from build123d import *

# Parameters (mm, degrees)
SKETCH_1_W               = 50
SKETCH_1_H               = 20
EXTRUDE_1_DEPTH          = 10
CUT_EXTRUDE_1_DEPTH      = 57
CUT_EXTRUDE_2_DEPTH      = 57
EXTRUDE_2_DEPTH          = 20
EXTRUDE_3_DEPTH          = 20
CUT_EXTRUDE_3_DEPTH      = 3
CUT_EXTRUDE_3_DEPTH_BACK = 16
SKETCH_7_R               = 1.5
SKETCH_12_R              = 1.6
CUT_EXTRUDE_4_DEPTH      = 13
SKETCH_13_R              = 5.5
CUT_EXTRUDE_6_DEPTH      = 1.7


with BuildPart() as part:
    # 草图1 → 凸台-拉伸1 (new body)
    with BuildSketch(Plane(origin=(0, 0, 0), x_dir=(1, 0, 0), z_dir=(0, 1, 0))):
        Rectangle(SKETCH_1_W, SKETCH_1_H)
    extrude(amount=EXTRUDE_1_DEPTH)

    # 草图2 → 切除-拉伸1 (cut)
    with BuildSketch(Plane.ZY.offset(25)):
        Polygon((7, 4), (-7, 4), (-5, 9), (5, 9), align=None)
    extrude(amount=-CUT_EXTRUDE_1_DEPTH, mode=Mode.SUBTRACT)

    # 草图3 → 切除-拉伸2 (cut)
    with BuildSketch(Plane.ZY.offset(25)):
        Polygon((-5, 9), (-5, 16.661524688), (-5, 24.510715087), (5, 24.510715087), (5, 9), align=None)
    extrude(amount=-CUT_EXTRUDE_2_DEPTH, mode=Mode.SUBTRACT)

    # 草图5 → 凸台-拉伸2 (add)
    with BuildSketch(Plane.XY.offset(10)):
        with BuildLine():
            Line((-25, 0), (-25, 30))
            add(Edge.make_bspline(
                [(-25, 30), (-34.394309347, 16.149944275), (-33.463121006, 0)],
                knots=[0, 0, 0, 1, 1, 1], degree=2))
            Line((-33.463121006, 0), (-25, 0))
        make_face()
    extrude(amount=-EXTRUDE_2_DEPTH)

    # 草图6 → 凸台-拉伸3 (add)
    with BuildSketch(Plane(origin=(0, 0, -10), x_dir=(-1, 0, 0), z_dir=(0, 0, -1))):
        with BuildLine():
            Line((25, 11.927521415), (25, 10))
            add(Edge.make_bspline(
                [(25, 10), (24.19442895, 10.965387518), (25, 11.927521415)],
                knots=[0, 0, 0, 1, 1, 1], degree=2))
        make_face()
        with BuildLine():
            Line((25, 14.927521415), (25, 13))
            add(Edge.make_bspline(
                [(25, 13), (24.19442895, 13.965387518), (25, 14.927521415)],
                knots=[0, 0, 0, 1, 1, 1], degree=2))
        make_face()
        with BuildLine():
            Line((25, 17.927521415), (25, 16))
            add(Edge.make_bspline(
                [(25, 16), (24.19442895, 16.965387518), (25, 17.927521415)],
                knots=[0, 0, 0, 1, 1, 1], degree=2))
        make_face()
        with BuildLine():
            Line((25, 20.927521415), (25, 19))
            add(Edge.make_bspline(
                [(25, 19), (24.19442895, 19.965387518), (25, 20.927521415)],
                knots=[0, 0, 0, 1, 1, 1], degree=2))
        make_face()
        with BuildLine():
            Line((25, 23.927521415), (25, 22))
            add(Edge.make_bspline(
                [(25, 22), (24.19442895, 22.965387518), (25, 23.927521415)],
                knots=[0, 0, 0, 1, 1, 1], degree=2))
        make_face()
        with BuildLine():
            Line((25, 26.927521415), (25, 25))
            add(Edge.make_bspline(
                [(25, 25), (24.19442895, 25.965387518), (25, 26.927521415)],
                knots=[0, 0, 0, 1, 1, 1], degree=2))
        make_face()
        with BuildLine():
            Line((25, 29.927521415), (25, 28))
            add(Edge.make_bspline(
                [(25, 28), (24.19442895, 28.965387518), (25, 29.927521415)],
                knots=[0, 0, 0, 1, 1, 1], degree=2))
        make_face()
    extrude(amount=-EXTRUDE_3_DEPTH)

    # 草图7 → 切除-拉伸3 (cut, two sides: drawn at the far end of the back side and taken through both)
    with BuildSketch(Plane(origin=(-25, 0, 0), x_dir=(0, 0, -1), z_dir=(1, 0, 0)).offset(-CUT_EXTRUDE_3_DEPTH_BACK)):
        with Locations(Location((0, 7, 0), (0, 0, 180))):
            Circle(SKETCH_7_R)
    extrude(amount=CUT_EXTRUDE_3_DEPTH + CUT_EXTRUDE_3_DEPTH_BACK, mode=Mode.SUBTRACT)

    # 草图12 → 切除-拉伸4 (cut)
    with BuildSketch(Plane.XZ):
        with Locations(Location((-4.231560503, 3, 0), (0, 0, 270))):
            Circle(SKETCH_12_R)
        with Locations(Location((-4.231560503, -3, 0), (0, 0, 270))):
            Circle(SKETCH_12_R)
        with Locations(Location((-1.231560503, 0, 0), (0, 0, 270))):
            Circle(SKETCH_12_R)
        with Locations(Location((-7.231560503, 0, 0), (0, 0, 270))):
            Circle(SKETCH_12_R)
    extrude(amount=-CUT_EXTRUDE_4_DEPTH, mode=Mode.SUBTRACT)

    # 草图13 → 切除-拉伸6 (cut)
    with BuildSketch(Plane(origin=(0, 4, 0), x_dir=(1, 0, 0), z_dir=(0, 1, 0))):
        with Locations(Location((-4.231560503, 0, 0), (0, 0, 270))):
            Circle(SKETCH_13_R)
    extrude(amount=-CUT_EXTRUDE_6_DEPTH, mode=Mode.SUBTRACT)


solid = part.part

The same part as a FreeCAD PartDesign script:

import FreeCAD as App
import Part
import Sketcher
from FreeCAD import Vector
Q = App.Units.Quantity


def add_polygon(sketch, points):
    """Adds a closed chain of lines whose ends are joined by coincident constraints."""
    first, n = sketch.GeometryCount, len(points)
    for a, b in zip(points, points[1:] + points[:1]):
        sketch.addGeometry(Part.LineSegment(App.Vector(*a, 0), App.Vector(*b, 0)), False)
    for i in range(n):
        sketch.addConstraint(Sketcher.Constraint("Coincident", first + i, 2, first + (i + 1) % n, 1))

doc = App.newDocument("Part")
params = doc.addObject("Spreadsheet::Sheet", "Params")
for row, (alias, value) in enumerate([
    ("sketch1_width", "50 mm"),
    ("sketch1_height", "20 mm"),
    ("pad1_length", "10 mm"),
    ("sketch2_height", "14 mm"),
    ("sketch2_height2", "10 mm"),
    ("pocket1_length", "57 mm"),
    ("sketch3_height", "10 mm"),
    ("pocket2_length", "57 mm"),
    ("pad2_length", "20 mm"),
    ("pad3_length", "20 mm"),
    ("sketch6_diameter", "3 mm"),
    ("sketch7_diameter", "3.2 mm"),
    ("pocket4_length", "13 mm"),
    ("sketch8_diameter", "11 mm"),
    ("pocket5_length", "1.7 mm"),
], start=1):
    params.set(f"A{row}", alias)
    params.set(f"B{row}", "=" + value)
    params.setAlias(f"B{row}", alias)

body = doc.addObject("PartDesign::Body", "Body")

# Sketch on XZ plane
sketch1 = doc.addObject("Sketcher::SketchObject", "Sketch")
body.addObject(sketch1)
sketch1.AttachmentSupport = (doc.XZ_Plane, [""])
sketch1.MapMode = "FlatFace"
add_polygon(sketch1, [(-25, -10), (-25, 10), (25, 10), (25, -10)])  # lines 0-3
sketch1.addConstraint([
    Sketcher.Constraint("Vertical", 0),
    Sketcher.Constraint("Horizontal", 1),
    Sketcher.Constraint("Vertical", 2),
    Sketcher.Constraint("Horizontal", 3),
    Sketcher.Constraint("Symmetric", 0, 2, 2, 2, -1, 1),
    Sketcher.Constraint("DistanceX", 1, 1, 1, 2, Q("50 mm")),
    Sketcher.Constraint("DistanceY", 0, 1, 0, 2, Q("20 mm")),
])
sketch1.setExpression("Constraints[9]", "Params.sketch1_width")
sketch1.setExpression("Constraints[10]", "Params.sketch1_height")
pad1 = doc.addObject("PartDesign::Pad", "Pad")
body.addObject(pad1)
pad1.Profile = sketch1
pad1.setExpression("Length", "Params.pad1_length")
pad1.Reversed = True

# Sketch on YZ plane
sketch2 = doc.addObject("Sketcher::SketchObject", "Sketch001")
body.addObject(sketch2)
sketch2.AttachmentSupport = (doc.YZ_Plane, [""])
sketch2.MapMode = "FlatFace"
sketch2.AttachmentOffset = App.Placement(Vector(0, 0, -25), App.Rotation())
add_polygon(sketch2, [(4, -7), (4, 7), (9, 5), (9, -5)])  # lines 0-3
sketch2.addConstraint([
    Sketcher.Constraint("Vertical", 0),
    Sketcher.Constraint("Vertical", 2),
    Sketcher.Constraint("Equal", 1, 3),
    Sketcher.Constraint("DistanceY", 0, 1, 0, 2, Q("14 mm")),
    Sketcher.Constraint("DistanceY", 2, 2, 2, 1, Q("10 mm")),
    Sketcher.Constraint("DistanceX", -1, 1, 0, 2, Q("4 mm")),
    Sketcher.Constraint("DistanceY", -1, 1, 0, 2, Q("7 mm")),
    Sketcher.Constraint("DistanceX", -1, 1, 1, 2, Q("9 mm")),
])
sketch2.setExpression("Constraints[7]", "Params.sketch2_height")
sketch2.setExpression("Constraints[8]", "Params.sketch2_height2")
pocket1 = doc.addObject("PartDesign::Pocket", "Pocket")
body.addObject(pocket1)
pocket1.Profile = sketch2
pocket1.setExpression("Length", "Params.pocket1_length")
pocket1.Reversed = True

# Sketch on YZ plane
sketch3 = doc.addObject("Sketcher::SketchObject", "Sketch002")
body.addObject(sketch3)
sketch3.AttachmentSupport = (doc.YZ_Plane, [""])
sketch3.MapMode = "FlatFace"
sketch3.AttachmentOffset = App.Placement(Vector(0, 0, -25), App.Rotation())
add_polygon(sketch3, [(25, -5), (9, -5), (9, 5), (25, 5)])  # lines 0-3
sketch3.addConstraint([
    Sketcher.Constraint("Horizontal", 0),
    Sketcher.Constraint("Vertical", 1),
    Sketcher.Constraint("Horizontal", 2),
    Sketcher.Constraint("Vertical", 3),
    Sketcher.Constraint("DistanceY", 1, 1, 1, 2, Q("10 mm")),
    Sketcher.Constraint("DistanceX", -1, 1, 0, 2, Q("9 mm")),
    Sketcher.Constraint("DistanceY", 0, 2, -1, 1, Q("5 mm")),
    Sketcher.Constraint("DistanceX", 0, 2, 0, 1, Q("15.510715 mm")),
])
sketch3.setExpression("Constraints[8]", "Params.sketch3_height")
pocket2 = doc.addObject("PartDesign::Pocket", "Pocket001")
body.addObject(pocket2)
pocket2.Profile = sketch3
pocket2.setExpression("Length", "Params.pocket2_length")
pocket2.Reversed = True

# Sketch on XY plane
sketch4 = doc.addObject("Sketcher::SketchObject", "Sketch003")
body.addObject(sketch4)
sketch4.AttachmentSupport = (doc.XY_Plane, [""])
sketch4.MapMode = "FlatFace"
sketch4.AttachmentOffset = App.Placement(Vector(0, 0, 10), App.Rotation())
sketch4.addGeometry([
    Part.LineSegment(Vector(-25, 0, 0), Vector(-25, 30, 0)),
    Part.BSplineCurve([Vector(-25, 30, 0), Vector(-34.394309, 16.149944, 0), Vector(-33.463121, 0, 0)], [3, 3], [0, 1], False, 2, [1, 1, 1], False),
    Part.LineSegment(Vector(-33.463121, 0, 0), Vector(-25, 0, 0)),
], False)
sketch4.addConstraint([
    Sketcher.Constraint("Block", 1),
    Sketcher.Constraint("Coincident", 0, 2, 1, 1),
    Sketcher.Constraint("Coincident", 1, 2, 2, 1),
    Sketcher.Constraint("Coincident", 2, 2, 0, 1),
    Sketcher.Constraint("Vertical", 0),
    Sketcher.Constraint("Horizontal", 2),
])
pad2 = doc.addObject("PartDesign::Pad", "Pad001")
body.addObject(pad2)
pad2.Profile = sketch4
pad2.setExpression("Length", "Params.pad2_length")
pad2.Reversed = True

# Sketch on XY plane
sketch5 = doc.addObject("Sketcher::SketchObject", "Sketch004")
body.addObject(sketch5)
sketch5.AttachmentSupport = (doc.XY_Plane, [""])
sketch5.MapMode = "FlatFace"
sketch5.AttachmentOffset = App.Placement(Vector(0, 0, -10), App.Rotation())
sketch5.addGeometry([
    Part.LineSegment(Vector(-25, 10, 0), Vector(-25, 11.927521, 0)),  # 0
    Part.BSplineCurve([Vector(-25, 10, 0), Vector(-24.194429, 10.965388, 0), Vector(-25, 11.927521, 0)], [3, 3], [0, 1], False, 2, [1, 1, 1], False),  # 1
    Part.LineSegment(Vector(-25, 13, 0), Vector(-25, 14.927521, 0)),  # 2
    Part.BSplineCurve([Vector(-25, 13, 0), Vector(-24.194429, 13.965388, 0), Vector(-25, 14.927521, 0)], [3, 3], [0, 1], False, 2, [1, 1, 1], False),  # 3
    Part.LineSegment(Vector(-25, 16, 0), Vector(-25, 17.927521, 0)),  # 4
    Part.BSplineCurve([Vector(-25, 16, 0), Vector(-24.194429, 16.965388, 0), Vector(-25, 17.927521, 0)], [3, 3], [0, 1], False, 2, [1, 1, 1], False),  # 5
    Part.LineSegment(Vector(-25, 19, 0), Vector(-25, 20.927521, 0)),  # 6
    Part.BSplineCurve([Vector(-25, 19, 0), Vector(-24.194429, 19.965388, 0), Vector(-25, 20.927521, 0)], [3, 3], [0, 1], False, 2, [1, 1, 1], False),  # 7
    Part.LineSegment(Vector(-25, 22, 0), Vector(-25, 23.927521, 0)),  # 8
    Part.BSplineCurve([Vector(-25, 22, 0), Vector(-24.194429, 22.965388, 0), Vector(-25, 23.927521, 0)], [3, 3], [0, 1], False, 2, [1, 1, 1], False),  # 9
    Part.LineSegment(Vector(-25, 25, 0), Vector(-25, 26.927521, 0)),  # 10
    Part.BSplineCurve([Vector(-25, 25, 0), Vector(-24.194429, 25.965388, 0), Vector(-25, 26.927521, 0)], [3, 3], [0, 1], False, 2, [1, 1, 1], False),  # 11
    Part.LineSegment(Vector(-25, 28, 0), Vector(-25, 29.927521, 0)),  # 12
    Part.BSplineCurve([Vector(-25, 28, 0), Vector(-24.194429, 28.965388, 0), Vector(-25, 29.927521, 0)], [3, 3], [0, 1], False, 2, [1, 1, 1], False),  # 13
], False)
sketch5.addConstraint([
    Sketcher.Constraint("Block", 1),
    Sketcher.Constraint("Block", 3),
    Sketcher.Constraint("Block", 5),
    Sketcher.Constraint("Block", 7),
    Sketcher.Constraint("Block", 9),
    Sketcher.Constraint("Block", 11),
    Sketcher.Constraint("Block", 13),
    Sketcher.Constraint("Coincident", 0, 1, 1, 1),
    Sketcher.Constraint("Coincident", 1, 2, 0, 2),
    Sketcher.Constraint("Coincident", 2, 1, 3, 1),
    Sketcher.Constraint("Coincident", 3, 2, 2, 2),
    Sketcher.Constraint("Coincident", 4, 1, 5, 1),
    Sketcher.Constraint("Coincident", 5, 2, 4, 2),
    Sketcher.Constraint("Coincident", 6, 1, 7, 1),
    Sketcher.Constraint("Coincident", 7, 2, 6, 2),
    Sketcher.Constraint("Coincident", 8, 1, 9, 1),
    Sketcher.Constraint("Coincident", 9, 2, 8, 2),
    Sketcher.Constraint("Coincident", 10, 1, 11, 1),
    Sketcher.Constraint("Coincident", 11, 2, 10, 2),
    Sketcher.Constraint("Coincident", 12, 1, 13, 1),
    Sketcher.Constraint("Coincident", 13, 2, 12, 2),
])
pad3 = doc.addObject("PartDesign::Pad", "Pad002")
body.addObject(pad3)
pad3.Profile = sketch5
pad3.setExpression("Length", "Params.pad3_length")

# Sketch on YZ plane
sketch6 = doc.addObject("Sketcher::SketchObject", "Sketch005")
body.addObject(sketch6)
sketch6.AttachmentSupport = (doc.YZ_Plane, [""])
sketch6.MapMode = "FlatFace"
sketch6.AttachmentOffset = App.Placement(Vector(0, 0, -25), App.Rotation())
sketch6.addGeometry(Part.Circle(Vector(7, 0, 0), Vector(0, 0, 1), 1.5), False)
sketch6.addConstraint([
    Sketcher.Constraint("PointOnObject", 0, 3, -1),
    Sketcher.Constraint("Diameter", 0, Q("3 mm")),
    Sketcher.Constraint("DistanceX", -1, 1, 0, 3, Q("7 mm")),
])
sketch6.setExpression("Constraints[1]", "Params.sketch6_diameter")
pocket3 = doc.addObject("PartDesign::Pocket", "Pocket002")
body.addObject(pocket3)
pocket3.Profile = sketch6
pocket3.Type = "ThroughAll"
pocket3.Midplane = True

# Sketch on XZ plane
sketch7 = doc.addObject("Sketcher::SketchObject", "Sketch006")
body.addObject(sketch7)
sketch7.AttachmentSupport = (doc.XZ_Plane, [""])
sketch7.MapMode = "FlatFace"
sketch7.addGeometry([
    Part.Circle(Vector(-4.2, 3, 0), Vector(0, 0, 1), 1.6),
    Part.Circle(Vector(-4.2, -3, 0), Vector(0, 0, 1), 1.6),
    Part.Circle(Vector(-1.2, 0, 0), Vector(0, 0, 1), 1.6),
    Part.Circle(Vector(-7.2, 0, 0), Vector(0, 0, 1), 1.6),
], False)
sketch7.addConstraint([
    Sketcher.Constraint("Equal", 0, 1),
    Sketcher.Constraint("Equal", 1, 2),
    Sketcher.Constraint("Equal", 2, 3),
    Sketcher.Constraint("Symmetric", 0, 3, 1, 3, -1),
    Sketcher.Constraint("PointOnObject", 2, 3, -1),
    Sketcher.Constraint("PointOnObject", 3, 3, -1),
    Sketcher.Constraint("Diameter", 0, Q("3.2 mm")),
    Sketcher.Constraint("DistanceY", -1, 1, 0, 3, Q("3 mm")),
    Sketcher.Constraint("DistanceX", 0, 3, 2, 3, Q("3 mm")),
    Sketcher.Constraint("DistanceX", 3, 3, 0, 3, Q("3 mm")),
    Sketcher.Constraint("DistanceX", 0, 3, -1, 1, Q("4.231561 mm")),
])
sketch7.setExpression("Constraints[6]", "Params.sketch7_diameter")
pocket4 = doc.addObject("PartDesign::Pocket", "Pocket003")
body.addObject(pocket4)
pocket4.Profile = sketch7
pocket4.setExpression("Length", "Params.pocket4_length")

# Sketch on XZ plane
sketch8 = doc.addObject("Sketcher::SketchObject", "Sketch007")
body.addObject(sketch8)
sketch8.AttachmentSupport = (doc.XZ_Plane, [""])
sketch8.MapMode = "FlatFace"
sketch8.AttachmentOffset = App.Placement(Vector(0, 0, -4), App.Rotation())
sketch8.addGeometry(Part.Circle(Vector(-4, 0, 0), Vector(0, 0, 1), 6), False)
sketch8.addConstraint([
    Sketcher.Constraint("PointOnObject", 0, 3, -1),
    Sketcher.Constraint("Diameter", 0, Q("11 mm")),
    Sketcher.Constraint("DistanceX", 0, 3, -1, 1, Q("4.231561 mm")),
])
sketch8.setExpression("Constraints[1]", "Params.sketch8_diameter")
pocket5 = doc.addObject("PartDesign::Pocket", "Pocket004")
body.addObject(pocket5)
pocket5.Profile = sketch8
pocket5.setExpression("Length", "Params.pocket5_length")
pocket5.Reversed = True

doc.recompute()
